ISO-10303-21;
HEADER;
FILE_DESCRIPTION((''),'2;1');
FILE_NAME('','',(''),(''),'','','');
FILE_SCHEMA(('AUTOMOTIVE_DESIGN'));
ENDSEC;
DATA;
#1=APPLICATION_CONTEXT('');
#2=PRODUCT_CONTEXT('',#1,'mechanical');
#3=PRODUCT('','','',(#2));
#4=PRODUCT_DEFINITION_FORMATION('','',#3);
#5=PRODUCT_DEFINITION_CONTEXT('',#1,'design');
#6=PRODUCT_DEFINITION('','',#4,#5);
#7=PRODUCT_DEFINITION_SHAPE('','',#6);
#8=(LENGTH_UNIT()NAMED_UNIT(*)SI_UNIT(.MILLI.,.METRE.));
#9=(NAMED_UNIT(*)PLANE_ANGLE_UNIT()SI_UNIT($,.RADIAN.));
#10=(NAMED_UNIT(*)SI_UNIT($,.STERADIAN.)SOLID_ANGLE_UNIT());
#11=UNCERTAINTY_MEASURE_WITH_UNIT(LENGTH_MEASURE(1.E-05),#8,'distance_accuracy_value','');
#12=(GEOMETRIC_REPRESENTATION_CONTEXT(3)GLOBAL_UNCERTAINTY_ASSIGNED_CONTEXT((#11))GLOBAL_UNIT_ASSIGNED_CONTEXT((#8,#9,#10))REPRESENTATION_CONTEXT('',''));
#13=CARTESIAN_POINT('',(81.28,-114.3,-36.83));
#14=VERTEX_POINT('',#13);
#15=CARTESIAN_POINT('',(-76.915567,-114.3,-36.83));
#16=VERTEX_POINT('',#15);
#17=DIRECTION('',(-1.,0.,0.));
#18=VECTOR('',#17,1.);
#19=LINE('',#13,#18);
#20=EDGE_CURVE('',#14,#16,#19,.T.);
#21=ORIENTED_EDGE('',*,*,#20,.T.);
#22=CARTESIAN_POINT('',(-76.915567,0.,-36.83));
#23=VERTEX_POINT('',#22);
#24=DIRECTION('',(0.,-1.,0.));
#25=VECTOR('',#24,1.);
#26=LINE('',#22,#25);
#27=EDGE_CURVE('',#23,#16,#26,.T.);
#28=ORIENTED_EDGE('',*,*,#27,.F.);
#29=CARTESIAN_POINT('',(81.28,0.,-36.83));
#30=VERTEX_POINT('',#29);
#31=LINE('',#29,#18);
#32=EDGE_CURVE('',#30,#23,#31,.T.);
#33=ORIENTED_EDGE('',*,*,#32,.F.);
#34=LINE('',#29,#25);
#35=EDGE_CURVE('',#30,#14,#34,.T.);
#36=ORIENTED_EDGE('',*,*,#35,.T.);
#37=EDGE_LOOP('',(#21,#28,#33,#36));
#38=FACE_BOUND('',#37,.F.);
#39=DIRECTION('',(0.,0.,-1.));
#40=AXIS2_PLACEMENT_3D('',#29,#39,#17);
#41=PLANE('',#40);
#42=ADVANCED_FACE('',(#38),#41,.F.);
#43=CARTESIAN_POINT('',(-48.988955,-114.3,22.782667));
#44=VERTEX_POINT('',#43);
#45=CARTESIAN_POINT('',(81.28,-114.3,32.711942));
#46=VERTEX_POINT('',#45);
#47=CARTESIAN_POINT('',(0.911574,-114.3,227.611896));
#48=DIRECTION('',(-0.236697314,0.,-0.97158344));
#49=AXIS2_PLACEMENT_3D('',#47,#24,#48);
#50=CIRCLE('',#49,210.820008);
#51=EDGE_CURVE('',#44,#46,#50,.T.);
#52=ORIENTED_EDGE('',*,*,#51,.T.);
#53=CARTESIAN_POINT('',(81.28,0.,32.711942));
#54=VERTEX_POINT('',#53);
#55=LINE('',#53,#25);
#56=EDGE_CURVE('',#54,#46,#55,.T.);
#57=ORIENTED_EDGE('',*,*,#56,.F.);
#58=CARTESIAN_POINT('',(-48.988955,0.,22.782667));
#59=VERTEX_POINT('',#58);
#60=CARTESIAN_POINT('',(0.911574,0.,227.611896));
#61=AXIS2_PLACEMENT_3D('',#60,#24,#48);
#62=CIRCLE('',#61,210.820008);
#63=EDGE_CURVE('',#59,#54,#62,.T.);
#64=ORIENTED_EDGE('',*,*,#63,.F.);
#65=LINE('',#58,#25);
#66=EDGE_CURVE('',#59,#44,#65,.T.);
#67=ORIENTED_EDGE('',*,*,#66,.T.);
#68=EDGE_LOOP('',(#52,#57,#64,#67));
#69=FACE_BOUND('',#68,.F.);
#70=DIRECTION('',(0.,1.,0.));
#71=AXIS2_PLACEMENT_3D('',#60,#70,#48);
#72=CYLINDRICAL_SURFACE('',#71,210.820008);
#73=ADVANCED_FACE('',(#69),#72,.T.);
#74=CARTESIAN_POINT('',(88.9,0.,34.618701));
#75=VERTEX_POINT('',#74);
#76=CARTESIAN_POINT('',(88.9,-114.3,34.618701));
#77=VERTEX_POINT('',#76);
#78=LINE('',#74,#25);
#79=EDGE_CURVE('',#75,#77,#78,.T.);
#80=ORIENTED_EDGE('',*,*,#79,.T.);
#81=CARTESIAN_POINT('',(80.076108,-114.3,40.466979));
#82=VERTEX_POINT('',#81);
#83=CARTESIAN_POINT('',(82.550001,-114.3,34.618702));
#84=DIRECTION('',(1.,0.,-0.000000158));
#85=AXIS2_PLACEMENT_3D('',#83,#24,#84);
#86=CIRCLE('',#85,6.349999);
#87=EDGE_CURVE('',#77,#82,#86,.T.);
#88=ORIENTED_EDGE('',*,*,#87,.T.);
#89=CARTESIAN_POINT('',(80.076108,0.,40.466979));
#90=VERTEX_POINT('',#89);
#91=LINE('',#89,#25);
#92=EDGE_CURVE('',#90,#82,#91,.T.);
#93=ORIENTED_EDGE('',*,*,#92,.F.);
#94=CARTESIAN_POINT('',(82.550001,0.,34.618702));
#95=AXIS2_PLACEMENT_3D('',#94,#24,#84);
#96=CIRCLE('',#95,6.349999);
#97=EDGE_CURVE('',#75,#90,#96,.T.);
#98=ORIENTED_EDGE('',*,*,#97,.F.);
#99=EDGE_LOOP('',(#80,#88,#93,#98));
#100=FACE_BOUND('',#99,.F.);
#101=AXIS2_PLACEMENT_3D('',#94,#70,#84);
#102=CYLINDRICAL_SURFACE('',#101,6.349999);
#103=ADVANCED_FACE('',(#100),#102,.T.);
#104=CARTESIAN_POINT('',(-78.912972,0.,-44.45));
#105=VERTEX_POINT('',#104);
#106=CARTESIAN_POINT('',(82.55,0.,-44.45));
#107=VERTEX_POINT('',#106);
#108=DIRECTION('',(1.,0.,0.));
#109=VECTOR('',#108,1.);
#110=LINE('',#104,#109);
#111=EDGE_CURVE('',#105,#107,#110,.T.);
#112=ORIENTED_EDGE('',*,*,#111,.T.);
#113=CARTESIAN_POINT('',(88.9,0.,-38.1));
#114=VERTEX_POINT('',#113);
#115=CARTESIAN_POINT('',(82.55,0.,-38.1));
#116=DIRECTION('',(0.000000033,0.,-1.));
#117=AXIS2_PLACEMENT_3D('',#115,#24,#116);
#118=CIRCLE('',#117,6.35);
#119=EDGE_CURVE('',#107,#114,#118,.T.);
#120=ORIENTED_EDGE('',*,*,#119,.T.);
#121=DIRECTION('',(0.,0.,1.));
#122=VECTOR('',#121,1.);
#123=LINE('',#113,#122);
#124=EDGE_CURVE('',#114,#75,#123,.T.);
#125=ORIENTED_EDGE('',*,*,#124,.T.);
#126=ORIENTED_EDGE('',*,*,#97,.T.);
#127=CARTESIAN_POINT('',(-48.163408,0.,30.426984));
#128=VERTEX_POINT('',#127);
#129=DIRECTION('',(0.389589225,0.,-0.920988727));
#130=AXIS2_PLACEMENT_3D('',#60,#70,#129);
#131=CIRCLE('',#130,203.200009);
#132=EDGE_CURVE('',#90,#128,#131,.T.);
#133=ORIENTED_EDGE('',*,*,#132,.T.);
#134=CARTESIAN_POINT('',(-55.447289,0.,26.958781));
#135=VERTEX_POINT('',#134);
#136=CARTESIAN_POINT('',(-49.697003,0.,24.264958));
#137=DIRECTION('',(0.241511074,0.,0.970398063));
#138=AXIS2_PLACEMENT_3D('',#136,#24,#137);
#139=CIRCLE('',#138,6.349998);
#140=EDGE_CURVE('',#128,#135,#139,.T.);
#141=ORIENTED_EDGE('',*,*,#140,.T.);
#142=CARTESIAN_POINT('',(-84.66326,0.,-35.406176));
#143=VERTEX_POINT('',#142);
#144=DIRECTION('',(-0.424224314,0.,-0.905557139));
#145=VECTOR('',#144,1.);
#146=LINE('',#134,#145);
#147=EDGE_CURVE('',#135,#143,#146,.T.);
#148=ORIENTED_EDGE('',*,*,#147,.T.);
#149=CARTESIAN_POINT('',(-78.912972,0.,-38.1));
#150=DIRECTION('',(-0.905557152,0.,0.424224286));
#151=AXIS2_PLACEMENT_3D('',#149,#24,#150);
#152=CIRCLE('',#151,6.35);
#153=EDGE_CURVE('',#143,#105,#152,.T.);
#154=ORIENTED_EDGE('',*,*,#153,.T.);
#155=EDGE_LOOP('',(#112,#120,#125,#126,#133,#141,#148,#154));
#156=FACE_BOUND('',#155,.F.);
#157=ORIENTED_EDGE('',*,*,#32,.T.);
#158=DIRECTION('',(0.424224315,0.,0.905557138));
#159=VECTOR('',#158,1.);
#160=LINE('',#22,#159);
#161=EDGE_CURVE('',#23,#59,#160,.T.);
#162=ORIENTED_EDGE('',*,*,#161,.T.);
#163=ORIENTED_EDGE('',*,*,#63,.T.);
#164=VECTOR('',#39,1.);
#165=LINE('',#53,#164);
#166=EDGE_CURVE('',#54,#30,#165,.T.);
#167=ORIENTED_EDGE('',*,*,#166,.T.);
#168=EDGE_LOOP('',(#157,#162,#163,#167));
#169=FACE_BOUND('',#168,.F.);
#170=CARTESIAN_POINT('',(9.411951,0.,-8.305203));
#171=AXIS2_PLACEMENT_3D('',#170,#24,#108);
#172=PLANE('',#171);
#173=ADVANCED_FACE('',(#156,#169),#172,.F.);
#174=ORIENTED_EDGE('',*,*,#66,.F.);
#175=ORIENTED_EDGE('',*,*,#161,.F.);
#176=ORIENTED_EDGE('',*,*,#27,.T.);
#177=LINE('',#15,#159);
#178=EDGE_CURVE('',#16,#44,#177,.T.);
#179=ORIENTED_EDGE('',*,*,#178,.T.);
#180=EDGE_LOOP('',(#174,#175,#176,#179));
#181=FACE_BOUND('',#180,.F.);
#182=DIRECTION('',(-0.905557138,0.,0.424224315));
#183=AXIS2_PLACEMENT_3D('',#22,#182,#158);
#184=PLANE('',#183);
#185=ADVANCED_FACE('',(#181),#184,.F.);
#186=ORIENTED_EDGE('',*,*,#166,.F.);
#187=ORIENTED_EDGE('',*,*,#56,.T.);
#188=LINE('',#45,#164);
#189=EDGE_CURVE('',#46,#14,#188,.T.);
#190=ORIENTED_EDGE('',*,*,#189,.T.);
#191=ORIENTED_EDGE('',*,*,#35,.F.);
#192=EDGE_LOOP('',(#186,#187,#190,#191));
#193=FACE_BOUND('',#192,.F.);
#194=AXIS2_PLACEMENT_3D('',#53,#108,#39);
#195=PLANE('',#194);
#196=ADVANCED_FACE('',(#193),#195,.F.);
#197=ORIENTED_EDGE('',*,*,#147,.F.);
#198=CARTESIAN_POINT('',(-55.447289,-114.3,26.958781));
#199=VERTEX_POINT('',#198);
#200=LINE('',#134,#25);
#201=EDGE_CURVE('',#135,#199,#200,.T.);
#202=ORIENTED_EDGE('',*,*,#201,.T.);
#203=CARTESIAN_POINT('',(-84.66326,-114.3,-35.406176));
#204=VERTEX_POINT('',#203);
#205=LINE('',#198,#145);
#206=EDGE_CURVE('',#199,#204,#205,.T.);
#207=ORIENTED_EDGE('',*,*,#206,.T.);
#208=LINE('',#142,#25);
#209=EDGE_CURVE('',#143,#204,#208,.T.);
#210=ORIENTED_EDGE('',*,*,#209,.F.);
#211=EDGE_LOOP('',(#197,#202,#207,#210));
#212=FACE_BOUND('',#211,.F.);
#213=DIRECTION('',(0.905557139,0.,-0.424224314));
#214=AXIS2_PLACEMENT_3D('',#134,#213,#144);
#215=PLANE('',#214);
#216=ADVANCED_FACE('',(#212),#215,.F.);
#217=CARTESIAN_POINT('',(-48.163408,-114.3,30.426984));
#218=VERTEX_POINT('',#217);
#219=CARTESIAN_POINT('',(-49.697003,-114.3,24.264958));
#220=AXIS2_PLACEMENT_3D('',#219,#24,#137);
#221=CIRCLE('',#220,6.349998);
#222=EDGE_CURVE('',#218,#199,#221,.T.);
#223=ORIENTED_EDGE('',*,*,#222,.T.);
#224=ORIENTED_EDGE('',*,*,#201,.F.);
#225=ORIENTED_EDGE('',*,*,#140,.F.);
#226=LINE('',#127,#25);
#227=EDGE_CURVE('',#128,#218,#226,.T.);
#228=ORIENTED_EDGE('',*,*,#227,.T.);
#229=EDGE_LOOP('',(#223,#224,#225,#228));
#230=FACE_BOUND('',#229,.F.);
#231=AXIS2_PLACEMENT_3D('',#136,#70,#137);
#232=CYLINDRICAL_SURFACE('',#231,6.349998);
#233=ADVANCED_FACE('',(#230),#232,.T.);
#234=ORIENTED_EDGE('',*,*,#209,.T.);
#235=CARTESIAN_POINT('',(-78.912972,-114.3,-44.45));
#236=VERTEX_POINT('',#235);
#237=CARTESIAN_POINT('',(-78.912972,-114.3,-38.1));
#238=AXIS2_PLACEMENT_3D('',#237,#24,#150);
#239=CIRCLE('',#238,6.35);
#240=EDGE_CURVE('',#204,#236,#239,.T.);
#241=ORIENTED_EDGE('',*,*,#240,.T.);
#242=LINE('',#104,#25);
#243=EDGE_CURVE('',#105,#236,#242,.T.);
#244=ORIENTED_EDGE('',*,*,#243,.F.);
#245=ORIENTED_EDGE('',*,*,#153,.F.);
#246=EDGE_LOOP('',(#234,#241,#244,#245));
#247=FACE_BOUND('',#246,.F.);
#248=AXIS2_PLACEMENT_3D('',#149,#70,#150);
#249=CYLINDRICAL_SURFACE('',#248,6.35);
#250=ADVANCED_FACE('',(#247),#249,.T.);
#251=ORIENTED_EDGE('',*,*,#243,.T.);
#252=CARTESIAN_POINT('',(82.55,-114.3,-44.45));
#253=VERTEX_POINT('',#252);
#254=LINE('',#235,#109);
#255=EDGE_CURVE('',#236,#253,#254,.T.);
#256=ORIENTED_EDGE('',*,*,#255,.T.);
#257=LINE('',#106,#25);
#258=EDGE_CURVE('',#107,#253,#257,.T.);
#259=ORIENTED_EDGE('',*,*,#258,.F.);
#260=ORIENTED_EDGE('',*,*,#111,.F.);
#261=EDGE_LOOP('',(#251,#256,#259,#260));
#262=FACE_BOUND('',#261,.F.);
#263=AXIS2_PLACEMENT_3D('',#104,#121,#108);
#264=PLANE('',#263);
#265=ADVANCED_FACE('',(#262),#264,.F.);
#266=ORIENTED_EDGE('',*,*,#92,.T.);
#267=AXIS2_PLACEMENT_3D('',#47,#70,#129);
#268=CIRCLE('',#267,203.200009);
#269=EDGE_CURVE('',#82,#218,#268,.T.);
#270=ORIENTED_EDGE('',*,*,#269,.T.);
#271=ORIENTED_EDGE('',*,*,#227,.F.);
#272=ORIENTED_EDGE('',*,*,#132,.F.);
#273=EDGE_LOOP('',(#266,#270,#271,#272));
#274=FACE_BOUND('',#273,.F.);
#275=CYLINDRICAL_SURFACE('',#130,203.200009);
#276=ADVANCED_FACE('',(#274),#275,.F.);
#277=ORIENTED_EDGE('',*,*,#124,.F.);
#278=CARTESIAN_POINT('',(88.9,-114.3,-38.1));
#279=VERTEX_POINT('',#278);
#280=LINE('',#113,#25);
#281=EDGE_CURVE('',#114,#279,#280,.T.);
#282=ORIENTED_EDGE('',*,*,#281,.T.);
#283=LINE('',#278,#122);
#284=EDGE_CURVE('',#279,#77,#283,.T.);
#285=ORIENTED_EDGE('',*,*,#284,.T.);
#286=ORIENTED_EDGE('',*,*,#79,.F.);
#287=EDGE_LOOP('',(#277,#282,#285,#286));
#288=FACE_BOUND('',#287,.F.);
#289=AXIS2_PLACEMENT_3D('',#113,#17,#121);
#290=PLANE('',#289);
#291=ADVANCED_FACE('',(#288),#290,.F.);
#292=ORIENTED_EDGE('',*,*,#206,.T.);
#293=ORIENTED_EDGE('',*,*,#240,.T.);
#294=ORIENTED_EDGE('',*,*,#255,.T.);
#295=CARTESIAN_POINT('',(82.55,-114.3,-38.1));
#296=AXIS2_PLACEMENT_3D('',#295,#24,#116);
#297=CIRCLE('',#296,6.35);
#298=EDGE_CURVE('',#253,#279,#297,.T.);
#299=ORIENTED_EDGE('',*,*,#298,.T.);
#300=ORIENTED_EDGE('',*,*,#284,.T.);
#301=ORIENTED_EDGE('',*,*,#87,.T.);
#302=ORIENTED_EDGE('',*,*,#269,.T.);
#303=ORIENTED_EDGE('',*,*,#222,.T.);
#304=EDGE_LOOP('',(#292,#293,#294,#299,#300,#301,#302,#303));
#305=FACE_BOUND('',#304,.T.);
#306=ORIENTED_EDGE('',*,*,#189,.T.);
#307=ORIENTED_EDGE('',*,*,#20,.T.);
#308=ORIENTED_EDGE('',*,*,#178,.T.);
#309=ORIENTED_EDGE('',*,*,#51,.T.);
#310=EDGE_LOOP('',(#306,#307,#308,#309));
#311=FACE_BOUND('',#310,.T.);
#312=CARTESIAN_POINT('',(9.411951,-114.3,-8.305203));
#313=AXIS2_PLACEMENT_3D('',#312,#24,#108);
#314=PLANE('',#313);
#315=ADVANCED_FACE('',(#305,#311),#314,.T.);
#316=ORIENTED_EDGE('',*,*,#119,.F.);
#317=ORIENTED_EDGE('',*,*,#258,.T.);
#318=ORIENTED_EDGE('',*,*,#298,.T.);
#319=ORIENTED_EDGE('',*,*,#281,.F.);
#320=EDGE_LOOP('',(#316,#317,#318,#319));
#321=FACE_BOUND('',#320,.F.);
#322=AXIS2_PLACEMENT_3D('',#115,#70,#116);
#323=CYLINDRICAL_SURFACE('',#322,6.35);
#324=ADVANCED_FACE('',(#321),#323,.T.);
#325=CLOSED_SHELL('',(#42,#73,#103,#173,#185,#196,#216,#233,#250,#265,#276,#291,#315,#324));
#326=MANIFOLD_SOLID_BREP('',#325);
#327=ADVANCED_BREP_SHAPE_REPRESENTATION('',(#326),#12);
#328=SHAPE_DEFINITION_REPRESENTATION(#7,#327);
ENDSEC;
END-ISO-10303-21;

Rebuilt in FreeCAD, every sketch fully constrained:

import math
import FreeCAD as App
import Part
import Sketcher

V = App.Vector
Q = App.Units.Quantity

doc = App.newDocument("Part")
body = doc.addObject("PartDesign::Body", "Body")

# Sketch on XZ plane
sketch1 = body.newObject("Sketcher::SketchObject", "Sketch")
sketch1.AttachmentSupport = (doc.getObject("XZ_Plane"), [""])
sketch1.MapMode = "FlatFace"
sketch1.addGeometry([
    Part.LineSegment(V(-79, -44, 0), V(83, -44, 0)),  # 0
    Part.ArcOfCircle(Part.Circle(V(83, -38, 0), V(0, 0, 1), 6), math.radians(-90), math.radians(0)),  # 1
    Part.LineSegment(V(89, -38, 0), V(89, 35, 0)),  # 2
    Part.ArcOfCircle(Part.Circle(V(83, 35, 0), V(0, 0, 1), 6), math.radians(0), math.radians(113)),  # 3
    Part.ArcOfCircle(Part.Circle(V(1, 228, 0), V(0, 0, 1), 203), math.radians(-104), math.radians(-67)),  # 4
    Part.ArcOfCircle(Part.Circle(V(-50, 24, 0), V(0, 0, 1), 6), math.radians(76), math.radians(155)),  # 5
    Part.LineSegment(V(-55, 27, 0), V(-85, -35, 0)),  # 6
    Part.ArcOfCircle(Part.Circle(V(-79, -38, 0), V(0, 0, 1), 6), math.radians(155), math.radians(270)),  # 7
    Part.LineSegment(V(-77, -37, 0), V(-49, 23, 0)),  # 8
    Part.ArcOfCircle(Part.Circle(V(1, 228, 0), V(0, 0, 1), 211), math.radians(-104), math.radians(-68)),  # 9
    Part.LineSegment(V(81, 33, 0), V(81, -37, 0)),  # 10
    Part.LineSegment(V(81, -37, 0), V(-77, -37, 0)),  # 11
], False)
sketch1.addConstraint([
    Sketcher.Constraint("Tangent", 0, 2, 1, 1),
    Sketcher.Constraint("Tangent", 1, 2, 2, 1),
    Sketcher.Constraint("Tangent", 2, 2, 3, 1),
    Sketcher.Constraint("Tangent", 3, 2, 4, 2),
    Sketcher.Constraint("Tangent", 4, 1, 5, 1),
    Sketcher.Constraint("Tangent", 5, 2, 6, 1),
    Sketcher.Constraint("Tangent", 6, 2, 7, 1),
    Sketcher.Constraint("Tangent", 7, 2, 0, 1),
    Sketcher.Constraint("Coincident", 8, 2, 9, 1),
    Sketcher.Constraint("Coincident", 9, 2, 10, 1),
    Sketcher.Constraint("Coincident", 10, 2, 11, 1),
    Sketcher.Constraint("Coincident", 11, 2, 8, 1),
    Sketcher.Constraint("Horizontal", 0),
    Sketcher.Constraint("Vertical", 2),
    Sketcher.Constraint("Vertical", 10),
    Sketcher.Constraint("Horizontal", 11),
    Sketcher.Constraint("Coincident", 9, 3, 4, 3),
    Sketcher.Constraint("Equal", 1, 3),
    Sketcher.Constraint("Equal", 3, 5),
    Sketcher.Constraint("Equal", 3, 7),
    Sketcher.Constraint("Parallel", 6, 8),
    Sketcher.Constraint("Radius", 1, Q("0.25 in")),
    Sketcher.Constraint("DistanceY", 1, 3, -1, 1, Q("1.5 in")),
    Sketcher.Constraint("DistanceX", -1, 1, 1, 2, Q("3.5 in")),
    Sketcher.Constraint("DistanceX", -1, 1, 9, 2, Q("3.2 in")),
    Sketcher.Constraint("DistanceY", 0, 2, 10, 2, Q("0.3 in")),
    Sketcher.Constraint("Radius", 4, 203.200009),
    Sketcher.Constraint("DistanceY", 2, 1, 2, 2, 72.718701),
    Sketcher.Constraint("Radius", 9, 210.820008),
    Sketcher.Constraint("DistanceX", 4, 1, 3, 2, Q("5.0487998 in")),
    Sketcher.Constraint("DistanceX", 6, 2, 8, 2, Q("1.4045002 in")),
    Sketcher.Constraint("DistanceX", 0, 1, 0, 2, 161.462972),
    Sketcher.Constraint("DistanceY", 5, 2, 3, 2, 13.508198),
])
pad1 = body.newObject("PartDesign::Pad", "Pad")
pad1.Profile = sketch1
pad1.Length = Q("4.5 in")

doc.recompute()
